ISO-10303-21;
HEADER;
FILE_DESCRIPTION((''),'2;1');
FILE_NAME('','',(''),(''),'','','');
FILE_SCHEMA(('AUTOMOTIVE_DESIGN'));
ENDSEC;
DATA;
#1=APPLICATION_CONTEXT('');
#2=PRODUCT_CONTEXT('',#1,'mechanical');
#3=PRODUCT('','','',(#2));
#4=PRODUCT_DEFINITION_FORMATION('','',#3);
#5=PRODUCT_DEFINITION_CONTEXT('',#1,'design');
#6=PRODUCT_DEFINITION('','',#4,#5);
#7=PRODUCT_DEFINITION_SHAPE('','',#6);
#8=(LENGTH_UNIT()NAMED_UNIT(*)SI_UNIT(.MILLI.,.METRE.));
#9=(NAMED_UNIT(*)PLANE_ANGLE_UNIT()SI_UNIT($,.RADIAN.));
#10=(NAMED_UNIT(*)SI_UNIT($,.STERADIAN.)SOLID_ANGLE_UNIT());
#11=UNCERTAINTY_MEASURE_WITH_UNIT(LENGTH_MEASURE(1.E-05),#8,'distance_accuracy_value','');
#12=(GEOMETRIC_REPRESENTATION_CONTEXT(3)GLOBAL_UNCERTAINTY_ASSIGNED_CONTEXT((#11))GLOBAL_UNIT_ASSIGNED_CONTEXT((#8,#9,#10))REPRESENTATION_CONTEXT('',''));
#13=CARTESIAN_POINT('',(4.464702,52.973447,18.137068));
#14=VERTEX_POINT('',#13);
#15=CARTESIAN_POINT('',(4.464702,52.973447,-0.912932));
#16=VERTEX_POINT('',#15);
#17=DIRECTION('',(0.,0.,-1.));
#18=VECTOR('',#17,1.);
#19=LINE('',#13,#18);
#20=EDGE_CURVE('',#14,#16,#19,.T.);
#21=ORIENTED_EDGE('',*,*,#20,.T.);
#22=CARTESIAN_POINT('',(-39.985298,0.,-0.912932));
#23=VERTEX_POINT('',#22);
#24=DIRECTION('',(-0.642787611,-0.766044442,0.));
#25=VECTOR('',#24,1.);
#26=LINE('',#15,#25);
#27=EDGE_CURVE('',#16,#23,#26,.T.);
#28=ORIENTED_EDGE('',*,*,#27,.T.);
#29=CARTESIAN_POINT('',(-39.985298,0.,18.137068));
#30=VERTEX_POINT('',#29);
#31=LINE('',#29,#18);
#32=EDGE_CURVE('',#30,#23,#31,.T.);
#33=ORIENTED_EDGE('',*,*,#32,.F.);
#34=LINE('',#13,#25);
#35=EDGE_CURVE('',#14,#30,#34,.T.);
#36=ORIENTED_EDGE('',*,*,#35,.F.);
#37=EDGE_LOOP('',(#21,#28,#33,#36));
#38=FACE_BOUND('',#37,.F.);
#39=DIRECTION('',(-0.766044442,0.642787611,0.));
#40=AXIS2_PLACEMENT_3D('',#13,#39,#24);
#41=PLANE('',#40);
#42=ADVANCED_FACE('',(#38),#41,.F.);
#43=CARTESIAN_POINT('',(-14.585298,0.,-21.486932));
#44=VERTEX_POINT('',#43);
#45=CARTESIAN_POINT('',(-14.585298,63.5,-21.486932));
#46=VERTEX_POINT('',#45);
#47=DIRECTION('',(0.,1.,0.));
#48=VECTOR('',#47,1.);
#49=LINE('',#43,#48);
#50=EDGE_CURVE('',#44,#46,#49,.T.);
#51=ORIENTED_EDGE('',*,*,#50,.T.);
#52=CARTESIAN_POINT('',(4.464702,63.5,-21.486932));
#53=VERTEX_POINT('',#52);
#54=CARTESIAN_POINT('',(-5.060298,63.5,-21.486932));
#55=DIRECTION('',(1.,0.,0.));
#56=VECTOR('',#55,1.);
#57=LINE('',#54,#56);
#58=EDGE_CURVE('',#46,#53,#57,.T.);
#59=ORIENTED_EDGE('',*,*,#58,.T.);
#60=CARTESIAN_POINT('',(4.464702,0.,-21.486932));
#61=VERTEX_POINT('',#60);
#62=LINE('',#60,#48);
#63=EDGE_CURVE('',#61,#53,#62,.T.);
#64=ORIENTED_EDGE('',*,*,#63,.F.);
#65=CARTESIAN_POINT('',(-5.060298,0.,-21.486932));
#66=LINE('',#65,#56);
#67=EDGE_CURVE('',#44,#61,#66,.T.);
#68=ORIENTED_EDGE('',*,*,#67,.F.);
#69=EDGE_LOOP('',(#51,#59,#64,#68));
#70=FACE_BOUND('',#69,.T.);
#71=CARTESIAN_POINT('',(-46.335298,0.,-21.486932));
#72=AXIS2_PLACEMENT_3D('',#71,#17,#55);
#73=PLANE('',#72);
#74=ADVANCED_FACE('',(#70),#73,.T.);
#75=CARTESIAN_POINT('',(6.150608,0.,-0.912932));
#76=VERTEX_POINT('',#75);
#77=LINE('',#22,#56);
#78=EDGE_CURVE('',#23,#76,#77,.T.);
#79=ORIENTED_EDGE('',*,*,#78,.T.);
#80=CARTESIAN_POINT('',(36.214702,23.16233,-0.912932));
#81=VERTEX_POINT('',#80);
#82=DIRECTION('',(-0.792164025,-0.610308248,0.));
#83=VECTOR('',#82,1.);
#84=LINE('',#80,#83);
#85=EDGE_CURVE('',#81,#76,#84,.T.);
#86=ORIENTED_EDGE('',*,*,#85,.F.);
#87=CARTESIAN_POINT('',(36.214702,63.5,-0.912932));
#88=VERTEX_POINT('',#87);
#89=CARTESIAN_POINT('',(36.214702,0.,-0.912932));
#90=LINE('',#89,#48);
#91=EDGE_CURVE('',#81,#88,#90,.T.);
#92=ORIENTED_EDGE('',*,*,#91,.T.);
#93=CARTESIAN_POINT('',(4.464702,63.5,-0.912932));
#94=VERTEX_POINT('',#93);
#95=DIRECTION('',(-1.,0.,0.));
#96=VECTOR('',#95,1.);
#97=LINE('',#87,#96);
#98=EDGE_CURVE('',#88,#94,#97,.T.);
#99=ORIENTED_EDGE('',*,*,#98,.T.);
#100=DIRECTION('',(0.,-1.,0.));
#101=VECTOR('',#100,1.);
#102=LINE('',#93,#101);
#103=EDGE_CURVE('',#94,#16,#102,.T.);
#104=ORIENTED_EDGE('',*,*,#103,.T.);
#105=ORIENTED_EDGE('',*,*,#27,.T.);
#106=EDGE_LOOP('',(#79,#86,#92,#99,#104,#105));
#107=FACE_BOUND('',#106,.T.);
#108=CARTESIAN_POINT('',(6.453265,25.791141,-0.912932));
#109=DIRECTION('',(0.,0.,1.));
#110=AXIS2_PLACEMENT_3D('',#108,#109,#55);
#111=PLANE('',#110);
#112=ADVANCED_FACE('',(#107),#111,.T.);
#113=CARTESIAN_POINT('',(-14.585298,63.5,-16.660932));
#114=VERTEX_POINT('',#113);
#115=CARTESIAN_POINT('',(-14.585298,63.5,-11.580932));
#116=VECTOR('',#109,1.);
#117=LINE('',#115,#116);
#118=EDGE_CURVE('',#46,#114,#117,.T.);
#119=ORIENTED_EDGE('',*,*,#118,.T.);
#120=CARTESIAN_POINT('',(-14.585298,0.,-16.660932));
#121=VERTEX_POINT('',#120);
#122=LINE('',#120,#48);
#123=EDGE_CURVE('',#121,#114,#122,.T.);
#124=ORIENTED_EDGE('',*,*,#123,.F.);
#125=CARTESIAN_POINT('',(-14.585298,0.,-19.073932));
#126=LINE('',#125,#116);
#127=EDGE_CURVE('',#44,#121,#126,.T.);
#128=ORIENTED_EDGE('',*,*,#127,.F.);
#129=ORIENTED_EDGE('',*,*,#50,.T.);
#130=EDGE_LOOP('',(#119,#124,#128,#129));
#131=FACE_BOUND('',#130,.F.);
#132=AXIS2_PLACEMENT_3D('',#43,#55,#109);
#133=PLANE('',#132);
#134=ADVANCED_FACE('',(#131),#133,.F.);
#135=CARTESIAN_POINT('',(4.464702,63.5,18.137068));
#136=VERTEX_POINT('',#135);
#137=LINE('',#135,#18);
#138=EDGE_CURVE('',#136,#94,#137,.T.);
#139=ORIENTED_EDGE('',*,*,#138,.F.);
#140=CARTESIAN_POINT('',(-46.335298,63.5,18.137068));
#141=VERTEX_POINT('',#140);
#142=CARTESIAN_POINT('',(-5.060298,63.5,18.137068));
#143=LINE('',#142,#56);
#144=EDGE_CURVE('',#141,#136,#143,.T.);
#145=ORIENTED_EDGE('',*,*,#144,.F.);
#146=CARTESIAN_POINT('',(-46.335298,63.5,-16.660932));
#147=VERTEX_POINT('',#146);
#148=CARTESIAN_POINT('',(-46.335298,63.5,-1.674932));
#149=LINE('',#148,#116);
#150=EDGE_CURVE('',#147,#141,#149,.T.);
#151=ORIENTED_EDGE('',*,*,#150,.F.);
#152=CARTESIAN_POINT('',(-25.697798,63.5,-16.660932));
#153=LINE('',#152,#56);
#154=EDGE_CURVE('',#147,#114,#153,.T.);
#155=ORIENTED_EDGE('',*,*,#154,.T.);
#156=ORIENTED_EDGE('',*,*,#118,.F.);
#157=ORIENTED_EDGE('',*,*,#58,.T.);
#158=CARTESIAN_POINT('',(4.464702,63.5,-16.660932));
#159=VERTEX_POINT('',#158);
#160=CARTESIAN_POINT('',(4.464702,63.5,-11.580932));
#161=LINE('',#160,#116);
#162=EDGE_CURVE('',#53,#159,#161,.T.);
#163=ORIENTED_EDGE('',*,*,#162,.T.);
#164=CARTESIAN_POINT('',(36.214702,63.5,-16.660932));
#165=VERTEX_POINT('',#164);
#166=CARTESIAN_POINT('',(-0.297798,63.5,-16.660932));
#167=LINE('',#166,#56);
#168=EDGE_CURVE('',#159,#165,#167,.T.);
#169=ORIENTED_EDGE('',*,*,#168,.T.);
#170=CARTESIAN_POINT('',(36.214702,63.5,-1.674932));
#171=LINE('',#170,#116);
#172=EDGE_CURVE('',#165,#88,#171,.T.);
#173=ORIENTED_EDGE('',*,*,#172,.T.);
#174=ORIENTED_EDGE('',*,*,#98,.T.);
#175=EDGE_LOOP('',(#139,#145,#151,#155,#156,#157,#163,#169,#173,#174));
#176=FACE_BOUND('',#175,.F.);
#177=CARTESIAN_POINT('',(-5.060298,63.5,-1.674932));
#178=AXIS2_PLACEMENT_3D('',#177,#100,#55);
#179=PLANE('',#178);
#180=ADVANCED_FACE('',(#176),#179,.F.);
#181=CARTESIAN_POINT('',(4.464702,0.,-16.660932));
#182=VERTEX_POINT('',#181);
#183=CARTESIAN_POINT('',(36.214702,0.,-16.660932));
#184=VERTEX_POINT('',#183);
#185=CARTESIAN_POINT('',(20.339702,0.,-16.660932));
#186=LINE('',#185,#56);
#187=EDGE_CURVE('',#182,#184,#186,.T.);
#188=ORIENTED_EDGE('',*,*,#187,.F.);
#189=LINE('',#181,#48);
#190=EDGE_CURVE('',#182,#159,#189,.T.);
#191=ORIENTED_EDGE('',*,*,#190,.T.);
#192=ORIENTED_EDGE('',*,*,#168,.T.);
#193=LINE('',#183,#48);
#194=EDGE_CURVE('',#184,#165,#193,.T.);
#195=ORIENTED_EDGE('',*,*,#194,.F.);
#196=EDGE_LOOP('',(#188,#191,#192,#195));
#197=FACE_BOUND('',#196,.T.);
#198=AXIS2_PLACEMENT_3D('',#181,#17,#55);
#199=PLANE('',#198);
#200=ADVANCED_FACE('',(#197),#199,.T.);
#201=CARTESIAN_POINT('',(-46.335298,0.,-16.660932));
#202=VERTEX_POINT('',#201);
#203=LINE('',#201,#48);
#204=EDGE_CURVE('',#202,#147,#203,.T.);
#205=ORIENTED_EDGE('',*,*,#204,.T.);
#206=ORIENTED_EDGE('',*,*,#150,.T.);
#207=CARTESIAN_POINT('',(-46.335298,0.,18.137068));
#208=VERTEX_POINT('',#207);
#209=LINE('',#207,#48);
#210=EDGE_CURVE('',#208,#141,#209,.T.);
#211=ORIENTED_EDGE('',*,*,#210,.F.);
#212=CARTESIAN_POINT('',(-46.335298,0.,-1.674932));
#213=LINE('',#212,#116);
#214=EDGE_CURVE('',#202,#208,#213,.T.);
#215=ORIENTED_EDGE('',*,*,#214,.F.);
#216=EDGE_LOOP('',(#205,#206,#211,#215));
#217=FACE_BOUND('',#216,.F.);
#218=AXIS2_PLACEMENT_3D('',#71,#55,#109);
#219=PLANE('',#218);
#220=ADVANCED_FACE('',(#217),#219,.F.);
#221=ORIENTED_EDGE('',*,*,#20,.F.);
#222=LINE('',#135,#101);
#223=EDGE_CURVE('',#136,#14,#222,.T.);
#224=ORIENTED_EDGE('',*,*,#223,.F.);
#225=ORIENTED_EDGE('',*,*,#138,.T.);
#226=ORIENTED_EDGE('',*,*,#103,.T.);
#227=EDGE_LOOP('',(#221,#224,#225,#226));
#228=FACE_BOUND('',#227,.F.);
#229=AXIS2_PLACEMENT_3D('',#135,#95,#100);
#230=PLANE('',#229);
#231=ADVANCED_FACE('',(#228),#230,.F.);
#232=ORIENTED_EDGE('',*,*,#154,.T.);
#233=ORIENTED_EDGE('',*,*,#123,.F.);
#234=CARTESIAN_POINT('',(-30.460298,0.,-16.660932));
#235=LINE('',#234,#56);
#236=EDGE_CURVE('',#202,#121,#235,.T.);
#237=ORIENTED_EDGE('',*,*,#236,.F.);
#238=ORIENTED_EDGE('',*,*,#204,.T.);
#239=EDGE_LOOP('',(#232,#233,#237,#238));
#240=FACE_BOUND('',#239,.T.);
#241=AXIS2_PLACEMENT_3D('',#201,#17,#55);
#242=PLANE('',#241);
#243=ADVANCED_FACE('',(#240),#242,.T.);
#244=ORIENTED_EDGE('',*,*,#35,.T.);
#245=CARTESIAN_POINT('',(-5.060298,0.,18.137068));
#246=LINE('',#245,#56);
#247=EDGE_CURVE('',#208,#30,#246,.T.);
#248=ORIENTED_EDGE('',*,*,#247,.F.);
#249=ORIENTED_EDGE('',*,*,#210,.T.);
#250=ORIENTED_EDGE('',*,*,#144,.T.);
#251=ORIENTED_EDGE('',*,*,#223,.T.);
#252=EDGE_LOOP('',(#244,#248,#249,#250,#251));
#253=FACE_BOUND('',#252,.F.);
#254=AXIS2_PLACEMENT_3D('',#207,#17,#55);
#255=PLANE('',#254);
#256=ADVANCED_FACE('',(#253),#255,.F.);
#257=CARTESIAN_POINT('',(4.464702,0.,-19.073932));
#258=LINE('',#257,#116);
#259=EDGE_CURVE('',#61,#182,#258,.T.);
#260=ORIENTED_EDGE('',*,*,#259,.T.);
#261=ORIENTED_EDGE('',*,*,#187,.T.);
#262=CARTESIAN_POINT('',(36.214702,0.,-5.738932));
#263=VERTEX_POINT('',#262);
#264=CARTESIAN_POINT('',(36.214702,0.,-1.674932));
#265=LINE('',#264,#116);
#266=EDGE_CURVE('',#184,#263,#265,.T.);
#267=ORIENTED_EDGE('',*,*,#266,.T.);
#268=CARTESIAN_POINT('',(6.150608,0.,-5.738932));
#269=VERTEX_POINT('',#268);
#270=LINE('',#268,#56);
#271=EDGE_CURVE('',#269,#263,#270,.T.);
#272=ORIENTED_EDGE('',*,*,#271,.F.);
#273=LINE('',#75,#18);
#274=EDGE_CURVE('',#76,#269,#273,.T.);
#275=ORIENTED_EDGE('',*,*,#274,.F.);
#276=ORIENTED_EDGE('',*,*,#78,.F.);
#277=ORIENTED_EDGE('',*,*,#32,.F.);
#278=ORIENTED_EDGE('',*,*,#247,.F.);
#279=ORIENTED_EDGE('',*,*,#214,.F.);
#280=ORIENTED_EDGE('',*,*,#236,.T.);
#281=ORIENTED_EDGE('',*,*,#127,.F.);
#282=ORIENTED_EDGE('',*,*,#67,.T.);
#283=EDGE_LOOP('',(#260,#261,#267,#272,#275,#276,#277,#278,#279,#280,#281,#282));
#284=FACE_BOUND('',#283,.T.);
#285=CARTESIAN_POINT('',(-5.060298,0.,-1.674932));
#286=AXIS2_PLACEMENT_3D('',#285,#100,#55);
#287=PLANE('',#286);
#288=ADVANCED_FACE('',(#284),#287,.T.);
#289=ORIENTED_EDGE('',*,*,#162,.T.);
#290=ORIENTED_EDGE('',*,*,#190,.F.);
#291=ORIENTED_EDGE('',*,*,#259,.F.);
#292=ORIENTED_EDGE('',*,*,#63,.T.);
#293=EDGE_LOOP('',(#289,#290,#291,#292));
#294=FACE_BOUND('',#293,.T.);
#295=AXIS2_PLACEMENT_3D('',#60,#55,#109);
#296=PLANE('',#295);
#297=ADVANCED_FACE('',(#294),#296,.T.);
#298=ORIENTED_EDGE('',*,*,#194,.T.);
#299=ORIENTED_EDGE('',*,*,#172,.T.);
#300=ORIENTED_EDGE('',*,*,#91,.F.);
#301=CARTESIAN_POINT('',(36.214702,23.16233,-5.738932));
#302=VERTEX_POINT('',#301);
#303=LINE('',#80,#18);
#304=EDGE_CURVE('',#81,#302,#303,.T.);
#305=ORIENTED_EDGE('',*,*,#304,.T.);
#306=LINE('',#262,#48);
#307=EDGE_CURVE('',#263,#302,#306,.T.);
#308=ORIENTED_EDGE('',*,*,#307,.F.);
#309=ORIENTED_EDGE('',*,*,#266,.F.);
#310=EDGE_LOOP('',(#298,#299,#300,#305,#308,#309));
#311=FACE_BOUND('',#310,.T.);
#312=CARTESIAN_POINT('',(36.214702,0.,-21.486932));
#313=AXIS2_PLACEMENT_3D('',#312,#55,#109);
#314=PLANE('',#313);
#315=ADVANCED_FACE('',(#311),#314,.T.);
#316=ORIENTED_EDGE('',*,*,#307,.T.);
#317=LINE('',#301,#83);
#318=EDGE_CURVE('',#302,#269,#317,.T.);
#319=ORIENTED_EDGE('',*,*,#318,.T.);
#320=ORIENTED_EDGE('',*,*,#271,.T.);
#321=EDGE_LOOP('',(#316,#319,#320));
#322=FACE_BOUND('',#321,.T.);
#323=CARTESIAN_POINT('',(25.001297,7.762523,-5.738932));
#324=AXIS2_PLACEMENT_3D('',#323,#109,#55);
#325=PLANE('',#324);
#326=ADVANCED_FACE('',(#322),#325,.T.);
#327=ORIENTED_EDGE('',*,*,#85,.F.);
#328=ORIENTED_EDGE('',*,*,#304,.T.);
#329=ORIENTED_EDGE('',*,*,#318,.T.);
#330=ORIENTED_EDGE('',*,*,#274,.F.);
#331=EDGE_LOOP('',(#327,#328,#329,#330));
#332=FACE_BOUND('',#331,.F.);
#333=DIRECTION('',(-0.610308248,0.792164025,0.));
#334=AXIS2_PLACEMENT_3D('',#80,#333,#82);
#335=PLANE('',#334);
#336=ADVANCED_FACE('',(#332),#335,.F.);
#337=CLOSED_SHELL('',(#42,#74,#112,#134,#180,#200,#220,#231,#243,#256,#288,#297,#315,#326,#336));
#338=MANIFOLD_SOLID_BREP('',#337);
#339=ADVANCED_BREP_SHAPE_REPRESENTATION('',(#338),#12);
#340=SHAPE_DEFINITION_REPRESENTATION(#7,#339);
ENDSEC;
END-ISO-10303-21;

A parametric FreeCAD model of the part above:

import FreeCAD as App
import Part
import Sketcher
from FreeCAD import Vector
Q = App.Units.Quantity


def add_polygon(sketch, points):
    """Adds a closed chain of lines whose ends are joined by coincident constraints."""
    first, n = sketch.GeometryCount, len(points)
    for a, b in zip(points, points[1:] + points[:1]):
        sketch.addGeometry(Part.LineSegment(App.Vector(*a, 0), App.Vector(*b, 0)), False)
    for i in range(n):
        sketch.addConstraint(Sketcher.Constraint("Coincident", first + i, 2, first + (i + 1) % n, 1))

doc = App.newDocument("Part")
body = doc.addObject("PartDesign::Body", "Body")

sketch1 = body.newObject("Sketcher::SketchObject", "Sketch")
sketch1.AttachmentSupport = (doc.getObject("XZ_Plane"), [""])
sketch1.MapMode = "FlatFace"
add_polygon(sketch1, [(-46, 18), (-46, -21), (36, -21), (36, 18)])
sketch1.addConstraint([
    Sketcher.Constraint("Vertical", 0),
    Sketcher.Constraint("Horizontal", 1),
    Sketcher.Constraint("Vertical", 2),
    Sketcher.Constraint("Horizontal", 3),
    Sketcher.Constraint("DistanceX", 1, 1, 1, 2, Q("3.25 in")),
    Sketcher.Constraint("DistanceY", 0, 2, 0, 1, Q("1.56 in")),
    Sketcher.Constraint("DistanceX", 0, 2, -1, 1, Q("46.335298 mm")),
    Sketcher.Constraint("DistanceY", 0, 2, -1, 1, Q("21.486932 mm")),
])
pad1 = body.newObject("PartDesign::Pad", "Pad")
pad1.Profile = sketch1
pad1.Length = Q("2.5 in")
pad1.Reversed = True

sketch2 = body.newObject("Sketcher::SketchObject", "Sketch001")
sketch2.AttachmentSupport = (doc.getObject("XZ_Plane"), [""])
sketch2.MapMode = "FlatFace"
add_polygon(sketch2, [(-46.3, -16.7), (-46.3, -21.5), (-14.6, -21.5), (-14.6, -16.7)])
sketch2.addConstraint([
    Sketcher.Constraint("Vertical", 0),
    Sketcher.Constraint("Horizontal", 1),
    Sketcher.Constraint("Vertical", 2),
    Sketcher.Constraint("Horizontal", 3),
    Sketcher.Constraint("DistanceX", 1, 1, 1, 2, Q("1.25 in")),
    Sketcher.Constraint("DistanceY", 0, 2, 0, 1, Q("0.19 in")),
    Sketcher.Constraint("DistanceX", 0, 2, -1, 1, Q("46.335298 mm")),
    Sketcher.Constraint("DistanceY", 0, 2, -1, 1, Q("21.486932 mm")),
])
pocket1 = body.newObject("PartDesign::Pocket", "Pocket")
pocket1.Profile = sketch2
pocket1.Length = Q("6.06 in")

sketch3 = body.newObject("Sketcher::SketchObject", "Sketch002")
sketch3.AttachmentSupport = (doc.getObject("XZ_Plane"), [""])
sketch3.MapMode = "FlatFace"
add_polygon(sketch3, [(4.5, -16.7), (4.5, -21.5), (36.2, -21.5), (36.2, -16.7)])
sketch3.addConstraint([
    Sketcher.Constraint("Vertical", 0),
    Sketcher.Constraint("Horizontal", 1),
    Sketcher.Constraint("Vertical", 2),
    Sketcher.Constraint("Horizontal", 3),
    Sketcher.Constraint("DistanceX", 1, 1, 1, 2, Q("1.25 in")),
    Sketcher.Constraint("DistanceY", 0, 2, 0, 1, Q("0.19 in")),
    Sketcher.Constraint("DistanceY", 0, 2, -1, 1, Q("21.486932 mm")),
    Sketcher.Constraint("DistanceX", -1, 1, 0, 2, Q("4.464702 mm")),
])
pocket2 = body.newObject("PartDesign::Pocket", "Pocket001")
pocket2.Profile = sketch3
pocket2.Length = Q("3.27 in")

sketch4 = body.newObject("Sketcher::SketchObject", "Sketch003")
sketch4.AttachmentSupport = (doc.getObject("XY_Plane"), [""])
sketch4.MapMode = "FlatFace"
sketch4.AttachmentOffset = App.Placement(Vector(0, 0, 18.137068), App.Rotation())
add_polygon(sketch4, [(36, 64), (4, 64), (4, 53), (-40, 0), (36, 0)])
sketch4.addConstraint([
    Sketcher.Constraint("Horizontal", 0),
    Sketcher.Constraint("Vertical", 1),
    Sketcher.Constraint("Horizontal", 3),
    Sketcher.Constraint("Vertical", 4),
    Sketcher.Constraint("PointOnObject", 2, 2, -1),
    Sketcher.Constraint("DistanceX", 3, 1, 3, 2, Q("3 in")),
    Sketcher.Constraint("DistanceY", 4, 1, 4, 2, Q("2.5 in")),
    Sketcher.Constraint("Angle", 2, Q("-130 deg")),
    Sketcher.Constraint("DistanceX", 0, 2, 0, 1, Q("1.25 in")),
    Sketcher.Constraint("DistanceX", -1, 1, 0, 2, Q("4.464702 mm")),
])
pocket3 = body.newObject("PartDesign::Pocket", "Pocket002")
pocket3.Profile = sketch4
pocket3.Length = Q("0.75 in")

sketch5 = body.newObject("Sketcher::SketchObject", "Sketch004")
sketch5.AttachmentSupport = (doc.getObject("XY_Plane"), [""])
sketch5.MapMode = "FlatFace"
sketch5.AttachmentOffset = App.Placement(Vector(0, 0, -0.912932), App.Rotation())
add_polygon(sketch5, [(36, 23), (6, 0), (36, 0)])
sketch5.addConstraint([
    Sketcher.Constraint("Horizontal", 1),
    Sketcher.Constraint("Vertical", 2),
    Sketcher.Constraint("PointOnObject", 0, 2, -1),
    Sketcher.Constraint("DistanceY", 2, 1, 2, 2, Q("23.16233 mm")),
    Sketcher.Constraint("DistanceX", 1, 1, 1, 2, Q("30.064094 mm")),
    Sketcher.Constraint("DistanceX", -1, 1, 0, 2, Q("6.150608 mm")),
])
pocket4 = body.newObject("PartDesign::Pocket", "Pocket003")
pocket4.Profile = sketch5
pocket4.Length = Q("0.19 in")

doc.recompute()
